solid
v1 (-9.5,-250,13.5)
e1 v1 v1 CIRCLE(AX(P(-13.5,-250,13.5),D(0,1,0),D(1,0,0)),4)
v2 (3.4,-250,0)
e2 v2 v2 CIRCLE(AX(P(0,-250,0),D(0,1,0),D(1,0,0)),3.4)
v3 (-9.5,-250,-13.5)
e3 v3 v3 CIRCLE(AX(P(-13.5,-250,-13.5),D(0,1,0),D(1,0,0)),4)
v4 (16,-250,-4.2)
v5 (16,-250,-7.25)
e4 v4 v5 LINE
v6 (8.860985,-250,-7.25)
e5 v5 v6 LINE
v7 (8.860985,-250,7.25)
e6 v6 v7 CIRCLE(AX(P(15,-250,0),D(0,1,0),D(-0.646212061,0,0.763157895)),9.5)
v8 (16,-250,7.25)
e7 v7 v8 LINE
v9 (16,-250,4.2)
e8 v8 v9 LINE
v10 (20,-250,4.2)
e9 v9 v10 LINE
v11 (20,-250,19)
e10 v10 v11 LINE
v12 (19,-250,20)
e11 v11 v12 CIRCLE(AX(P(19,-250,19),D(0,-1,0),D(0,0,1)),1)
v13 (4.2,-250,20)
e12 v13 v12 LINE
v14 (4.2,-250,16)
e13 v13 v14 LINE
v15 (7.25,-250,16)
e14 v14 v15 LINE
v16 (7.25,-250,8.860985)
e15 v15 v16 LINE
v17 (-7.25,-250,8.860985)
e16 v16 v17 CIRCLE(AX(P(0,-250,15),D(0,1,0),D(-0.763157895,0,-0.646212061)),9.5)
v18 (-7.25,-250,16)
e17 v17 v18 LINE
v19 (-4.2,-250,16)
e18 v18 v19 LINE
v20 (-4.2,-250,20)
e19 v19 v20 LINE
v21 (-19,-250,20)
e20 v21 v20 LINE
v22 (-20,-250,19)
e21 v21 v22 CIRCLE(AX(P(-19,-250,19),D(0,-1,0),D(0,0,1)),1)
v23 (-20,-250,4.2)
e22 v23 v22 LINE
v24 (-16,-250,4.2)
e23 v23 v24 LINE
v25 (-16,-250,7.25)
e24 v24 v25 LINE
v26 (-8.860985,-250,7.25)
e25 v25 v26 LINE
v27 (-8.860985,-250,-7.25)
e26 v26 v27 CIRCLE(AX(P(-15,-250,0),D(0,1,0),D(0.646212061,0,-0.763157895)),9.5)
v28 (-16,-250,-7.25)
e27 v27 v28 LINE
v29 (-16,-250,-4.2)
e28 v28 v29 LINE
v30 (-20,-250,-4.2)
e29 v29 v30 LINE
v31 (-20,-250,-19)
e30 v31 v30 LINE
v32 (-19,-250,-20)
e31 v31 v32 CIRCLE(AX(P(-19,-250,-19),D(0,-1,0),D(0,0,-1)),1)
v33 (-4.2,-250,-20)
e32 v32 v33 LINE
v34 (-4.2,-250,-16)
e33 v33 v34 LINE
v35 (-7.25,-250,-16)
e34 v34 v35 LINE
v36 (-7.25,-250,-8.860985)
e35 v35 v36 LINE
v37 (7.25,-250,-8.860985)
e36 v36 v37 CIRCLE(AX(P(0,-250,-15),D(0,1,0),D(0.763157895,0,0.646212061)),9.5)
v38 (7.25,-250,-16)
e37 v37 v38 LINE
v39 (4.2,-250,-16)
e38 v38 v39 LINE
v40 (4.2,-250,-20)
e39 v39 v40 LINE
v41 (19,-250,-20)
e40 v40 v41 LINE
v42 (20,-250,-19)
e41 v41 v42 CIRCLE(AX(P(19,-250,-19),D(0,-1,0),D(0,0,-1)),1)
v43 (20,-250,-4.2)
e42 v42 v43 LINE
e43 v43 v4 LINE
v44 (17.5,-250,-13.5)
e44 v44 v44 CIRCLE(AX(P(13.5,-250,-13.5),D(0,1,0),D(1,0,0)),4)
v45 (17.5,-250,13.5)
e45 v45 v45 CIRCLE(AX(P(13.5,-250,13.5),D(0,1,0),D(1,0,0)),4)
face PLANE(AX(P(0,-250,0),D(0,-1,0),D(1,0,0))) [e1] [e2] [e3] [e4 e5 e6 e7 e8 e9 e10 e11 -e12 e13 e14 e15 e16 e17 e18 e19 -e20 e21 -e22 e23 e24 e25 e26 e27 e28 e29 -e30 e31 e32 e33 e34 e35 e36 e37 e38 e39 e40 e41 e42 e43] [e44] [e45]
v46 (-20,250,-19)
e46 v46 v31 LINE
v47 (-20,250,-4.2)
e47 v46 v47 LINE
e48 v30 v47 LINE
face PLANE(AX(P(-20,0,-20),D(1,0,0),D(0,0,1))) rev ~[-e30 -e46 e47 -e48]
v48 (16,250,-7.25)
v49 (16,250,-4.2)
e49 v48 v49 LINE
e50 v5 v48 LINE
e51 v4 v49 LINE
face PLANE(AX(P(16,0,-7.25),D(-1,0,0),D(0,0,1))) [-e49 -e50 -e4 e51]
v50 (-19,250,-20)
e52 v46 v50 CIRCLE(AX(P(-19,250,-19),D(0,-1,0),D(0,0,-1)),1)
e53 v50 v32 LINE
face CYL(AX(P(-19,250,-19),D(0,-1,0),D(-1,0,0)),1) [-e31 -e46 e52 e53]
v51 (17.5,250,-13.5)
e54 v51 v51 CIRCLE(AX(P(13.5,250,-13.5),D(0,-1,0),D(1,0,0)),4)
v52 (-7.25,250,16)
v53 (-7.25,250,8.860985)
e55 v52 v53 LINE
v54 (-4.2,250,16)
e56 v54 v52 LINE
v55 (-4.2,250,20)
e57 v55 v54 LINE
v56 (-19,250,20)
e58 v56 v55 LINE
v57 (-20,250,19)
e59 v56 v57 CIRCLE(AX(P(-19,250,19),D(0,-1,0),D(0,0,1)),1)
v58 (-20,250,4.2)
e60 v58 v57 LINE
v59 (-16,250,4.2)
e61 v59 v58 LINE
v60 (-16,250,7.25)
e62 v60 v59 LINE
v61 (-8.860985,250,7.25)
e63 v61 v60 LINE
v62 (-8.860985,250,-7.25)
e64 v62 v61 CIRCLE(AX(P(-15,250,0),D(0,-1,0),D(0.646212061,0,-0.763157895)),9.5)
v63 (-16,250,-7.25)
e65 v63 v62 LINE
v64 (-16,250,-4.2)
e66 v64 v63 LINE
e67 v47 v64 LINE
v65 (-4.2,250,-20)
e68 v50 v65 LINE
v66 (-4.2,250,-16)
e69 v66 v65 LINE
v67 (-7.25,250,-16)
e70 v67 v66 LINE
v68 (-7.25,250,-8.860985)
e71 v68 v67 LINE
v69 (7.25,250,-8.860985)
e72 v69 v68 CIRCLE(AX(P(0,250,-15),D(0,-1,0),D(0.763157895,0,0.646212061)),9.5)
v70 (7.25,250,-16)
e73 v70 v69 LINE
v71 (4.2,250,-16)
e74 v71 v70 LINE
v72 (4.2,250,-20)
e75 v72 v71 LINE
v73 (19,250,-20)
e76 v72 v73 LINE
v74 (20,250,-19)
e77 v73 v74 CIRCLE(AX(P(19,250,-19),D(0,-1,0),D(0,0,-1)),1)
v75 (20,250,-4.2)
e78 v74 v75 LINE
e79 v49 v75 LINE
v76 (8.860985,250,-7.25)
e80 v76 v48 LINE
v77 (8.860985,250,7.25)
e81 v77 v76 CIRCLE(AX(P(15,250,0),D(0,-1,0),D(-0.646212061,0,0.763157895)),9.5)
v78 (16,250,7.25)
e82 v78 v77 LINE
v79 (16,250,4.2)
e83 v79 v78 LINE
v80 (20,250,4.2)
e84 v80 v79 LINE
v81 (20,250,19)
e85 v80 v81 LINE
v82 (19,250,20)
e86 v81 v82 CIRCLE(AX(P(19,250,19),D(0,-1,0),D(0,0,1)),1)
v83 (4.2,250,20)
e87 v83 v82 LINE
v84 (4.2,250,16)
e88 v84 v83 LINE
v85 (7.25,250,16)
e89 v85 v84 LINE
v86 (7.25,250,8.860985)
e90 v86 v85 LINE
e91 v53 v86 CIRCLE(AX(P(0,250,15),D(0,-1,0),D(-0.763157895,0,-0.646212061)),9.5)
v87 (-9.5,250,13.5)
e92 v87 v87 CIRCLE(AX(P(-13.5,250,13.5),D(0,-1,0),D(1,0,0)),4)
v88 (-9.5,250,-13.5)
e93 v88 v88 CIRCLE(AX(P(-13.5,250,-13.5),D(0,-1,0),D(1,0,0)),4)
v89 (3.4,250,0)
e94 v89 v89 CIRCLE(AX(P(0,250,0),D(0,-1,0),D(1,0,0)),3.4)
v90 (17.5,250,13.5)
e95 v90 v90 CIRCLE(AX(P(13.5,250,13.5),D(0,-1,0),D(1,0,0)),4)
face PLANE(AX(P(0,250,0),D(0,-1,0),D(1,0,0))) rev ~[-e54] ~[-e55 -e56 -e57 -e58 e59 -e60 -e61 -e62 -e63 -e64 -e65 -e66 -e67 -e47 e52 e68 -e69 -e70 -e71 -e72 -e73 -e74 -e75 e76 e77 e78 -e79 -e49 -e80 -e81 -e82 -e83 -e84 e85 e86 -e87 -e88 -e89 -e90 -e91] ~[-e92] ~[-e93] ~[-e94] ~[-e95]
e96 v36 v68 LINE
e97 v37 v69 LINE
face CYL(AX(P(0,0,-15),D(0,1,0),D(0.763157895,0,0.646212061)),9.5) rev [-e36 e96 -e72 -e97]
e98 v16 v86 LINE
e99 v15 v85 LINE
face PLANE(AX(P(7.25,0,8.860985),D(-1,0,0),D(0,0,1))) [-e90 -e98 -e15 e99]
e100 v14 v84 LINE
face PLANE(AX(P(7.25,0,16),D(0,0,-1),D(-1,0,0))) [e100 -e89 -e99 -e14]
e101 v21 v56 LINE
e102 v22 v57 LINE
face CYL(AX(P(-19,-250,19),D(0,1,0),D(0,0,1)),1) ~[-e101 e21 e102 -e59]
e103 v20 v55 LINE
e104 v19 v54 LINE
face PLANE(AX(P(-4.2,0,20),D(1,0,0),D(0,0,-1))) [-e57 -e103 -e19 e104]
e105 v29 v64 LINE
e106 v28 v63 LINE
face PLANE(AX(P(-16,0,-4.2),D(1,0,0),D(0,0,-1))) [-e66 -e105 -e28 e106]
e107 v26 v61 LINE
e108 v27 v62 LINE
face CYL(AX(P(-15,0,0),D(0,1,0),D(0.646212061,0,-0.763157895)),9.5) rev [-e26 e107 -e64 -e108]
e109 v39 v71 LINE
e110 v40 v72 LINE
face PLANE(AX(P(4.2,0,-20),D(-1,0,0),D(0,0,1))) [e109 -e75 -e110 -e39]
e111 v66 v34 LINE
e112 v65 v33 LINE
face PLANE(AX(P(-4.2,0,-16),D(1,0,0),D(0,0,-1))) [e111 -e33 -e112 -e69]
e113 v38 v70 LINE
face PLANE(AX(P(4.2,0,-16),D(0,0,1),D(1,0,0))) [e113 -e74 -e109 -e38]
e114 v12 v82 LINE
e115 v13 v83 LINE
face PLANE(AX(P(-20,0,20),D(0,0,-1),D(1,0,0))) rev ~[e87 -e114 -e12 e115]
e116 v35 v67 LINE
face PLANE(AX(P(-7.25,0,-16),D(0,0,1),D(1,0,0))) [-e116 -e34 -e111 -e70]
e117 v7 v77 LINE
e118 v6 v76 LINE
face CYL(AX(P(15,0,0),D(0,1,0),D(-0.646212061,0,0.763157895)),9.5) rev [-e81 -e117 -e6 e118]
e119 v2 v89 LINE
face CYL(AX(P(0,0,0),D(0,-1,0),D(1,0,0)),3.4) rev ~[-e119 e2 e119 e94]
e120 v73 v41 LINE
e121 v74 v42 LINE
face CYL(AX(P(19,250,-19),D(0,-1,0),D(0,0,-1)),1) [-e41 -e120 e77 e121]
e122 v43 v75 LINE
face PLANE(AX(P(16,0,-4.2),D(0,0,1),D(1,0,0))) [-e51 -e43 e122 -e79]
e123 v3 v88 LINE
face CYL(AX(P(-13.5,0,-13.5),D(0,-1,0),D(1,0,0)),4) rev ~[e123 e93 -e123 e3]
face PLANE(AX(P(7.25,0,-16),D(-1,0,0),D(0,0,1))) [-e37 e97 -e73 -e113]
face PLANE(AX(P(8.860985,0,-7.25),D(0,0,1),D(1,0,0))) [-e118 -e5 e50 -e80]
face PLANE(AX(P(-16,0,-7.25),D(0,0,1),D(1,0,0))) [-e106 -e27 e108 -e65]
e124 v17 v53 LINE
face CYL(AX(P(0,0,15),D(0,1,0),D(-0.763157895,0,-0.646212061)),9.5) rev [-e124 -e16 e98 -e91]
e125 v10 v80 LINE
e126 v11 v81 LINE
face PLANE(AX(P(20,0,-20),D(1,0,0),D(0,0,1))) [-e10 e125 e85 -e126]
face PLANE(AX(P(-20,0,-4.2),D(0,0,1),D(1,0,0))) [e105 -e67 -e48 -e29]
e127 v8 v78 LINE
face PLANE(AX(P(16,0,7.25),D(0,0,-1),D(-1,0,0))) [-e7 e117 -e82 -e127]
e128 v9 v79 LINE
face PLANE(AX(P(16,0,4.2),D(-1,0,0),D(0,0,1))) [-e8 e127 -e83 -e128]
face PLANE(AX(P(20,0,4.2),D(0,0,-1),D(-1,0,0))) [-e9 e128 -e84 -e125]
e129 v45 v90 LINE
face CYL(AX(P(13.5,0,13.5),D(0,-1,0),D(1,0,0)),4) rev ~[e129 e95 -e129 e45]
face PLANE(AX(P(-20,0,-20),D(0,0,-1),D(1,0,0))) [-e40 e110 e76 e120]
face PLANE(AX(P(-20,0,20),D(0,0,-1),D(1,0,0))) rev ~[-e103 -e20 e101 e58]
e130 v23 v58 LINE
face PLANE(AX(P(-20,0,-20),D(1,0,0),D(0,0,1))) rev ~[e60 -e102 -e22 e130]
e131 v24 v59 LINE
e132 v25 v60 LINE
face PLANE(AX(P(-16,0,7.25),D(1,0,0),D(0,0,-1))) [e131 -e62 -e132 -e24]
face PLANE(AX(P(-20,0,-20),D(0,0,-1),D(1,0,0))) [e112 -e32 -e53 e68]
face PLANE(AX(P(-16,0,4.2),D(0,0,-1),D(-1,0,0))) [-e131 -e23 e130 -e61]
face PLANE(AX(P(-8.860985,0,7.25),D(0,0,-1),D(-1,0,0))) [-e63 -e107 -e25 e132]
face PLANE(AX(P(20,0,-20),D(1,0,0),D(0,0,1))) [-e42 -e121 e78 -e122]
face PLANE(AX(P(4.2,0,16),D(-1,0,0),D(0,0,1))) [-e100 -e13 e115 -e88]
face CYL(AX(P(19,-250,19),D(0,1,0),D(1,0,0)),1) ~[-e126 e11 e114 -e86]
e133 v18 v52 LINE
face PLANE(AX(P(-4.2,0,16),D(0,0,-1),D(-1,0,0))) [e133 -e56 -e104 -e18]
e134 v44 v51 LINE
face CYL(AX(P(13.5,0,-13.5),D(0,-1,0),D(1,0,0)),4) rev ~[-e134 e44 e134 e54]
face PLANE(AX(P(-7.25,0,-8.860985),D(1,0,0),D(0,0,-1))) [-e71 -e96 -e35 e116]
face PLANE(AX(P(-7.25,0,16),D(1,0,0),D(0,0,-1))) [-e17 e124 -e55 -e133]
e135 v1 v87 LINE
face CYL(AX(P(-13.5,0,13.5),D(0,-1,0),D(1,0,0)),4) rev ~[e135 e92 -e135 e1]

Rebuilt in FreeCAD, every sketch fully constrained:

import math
import FreeCAD as App
import Part
import Sketcher
from FreeCAD import Vector
Q = App.Units.Quantity


def edges_at(feature, points):
    """Names of the edges that pass closest to the given points."""
    edges = feature.Shape.Edges
    near = lambda p: min(range(len(edges)), key=lambda i: edges[i].distToShape(Part.Vertex(*p))[0])
    return sorted({f"Edge{near(p) + 1}" for p in points})


def add_polygon(sketch, points):
    """Adds a closed chain of lines whose ends are joined by coincident constraints."""
    first, n = sketch.GeometryCount, len(points)
    for a, b in zip(points, points[1:] + points[:1]):
        sketch.addGeometry(Part.LineSegment(App.Vector(*a, 0), App.Vector(*b, 0)), False)
    for i in range(n):
        sketch.addConstraint(Sketcher.Constraint("Coincident", first + i, 2, first + (i + 1) % n, 1))

doc = App.newDocument("Part")
body = doc.addObject("PartDesign::Body", "Body")

# Sketch on XZ plane
sketch1 = body.newObject("Sketcher::SketchObject", "Sketch")
sketch1.AttachmentSupport = (doc.getObject("XZ_Plane"), [""])
sketch1.MapMode = "FlatFace"
add_polygon(sketch1, [(-20, 20), (-20, -20), (20, -20), (20, 20)])  # lines 0-3
sketch1.addConstraint(Sketcher.Constraint("Vertical", 0))
sketch1.addConstraint(Sketcher.Constraint("Horizontal", 1))
sketch1.addConstraint(Sketcher.Constraint("Vertical", 2))
sketch1.addConstraint(Sketcher.Constraint("Horizontal", 3))
sketch1.addConstraint(Sketcher.Constraint("Symmetric", 0, 2, 2, 2, -1, 1))
sketch1.addConstraint(Sketcher.Constraint("Equal", 3, 0))
sketch1.addConstraint(Sketcher.Constraint("DistanceX", 1, 1, 1, 2, Q("40 mm")))
pad1 = body.newObject("PartDesign::Pad", "Pad")
pad1.Profile = sketch1
pad1.Length = 500
pad1.Midplane = True

# Sketch on XZ plane
sketch2 = body.newObject("Sketcher::SketchObject", "Sketch001")
sketch2.AttachmentSupport = (doc.getObject("XZ_Plane"), [""])
sketch2.MapMode = "FlatFace"
sketch2.addGeometry(Part.Circle(Vector(-13.5, 13.5, 0), Vector(0, 0, 1), 4), False)
sketch2.addGeometry(Part.Circle(Vector(-13.5, -13.5, 0), Vector(0, 0, 1), 4), False)
sketch2.addGeometry(Part.Circle(Vector(13.5, -13.5, 0), Vector(0, 0, 1), 4), False)
sketch2.addGeometry(Part.Circle(Vector(13.5, 13.5, 0), Vector(0, 0, 1), 4), False)
sketch2.addGeometry(Part.Circle(Vector(0, 0, 0), Vector(0, 0, 1), 3.4), False)
sketch2.addConstraint(Sketcher.Constraint("Coincident", 4, 3, -1, 1))
sketch2.addConstraint(Sketcher.Constraint("Equal", 0, 1))
sketch2.addConstraint(Sketcher.Constraint("Equal", 1, 2))
sketch2.addConstraint(Sketcher.Constraint("Equal", 2, 3))
sketch2.addConstraint(Sketcher.Constraint("Symmetric", 0, 3, 2, 3, -1, 1))
sketch2.addConstraint(Sketcher.Constraint("Symmetric", 1, 3, 3, 3, -1, 1))
sketch2.addConstraint(Sketcher.Constraint("Symmetric", 1, 3, 2, 3, -2))
sketch2.addConstraint(Sketcher.Constraint("Diameter", 0, Q("8 mm")))
sketch2.addConstraint(Sketcher.Constraint("Diameter", 4, Q("6.8 mm")))
sketch2.addConstraint(Sketcher.Constraint("DistanceY", 1, 3, 0, 3, Q("27 mm")))
sketch2.addConstraint(Sketcher.Constraint("DistanceX", 1, 3, 2, 3, Q("27 mm")))
pocket1 = body.newObject("PartDesign::Pocket", "Pocket")
pocket1.Profile = sketch2
pocket1.Type = "ThroughAll"
pocket1.Midplane = True

# Sketch on XZ plane
sketch3 = body.newObject("Sketcher::SketchObject", "Sketch002")
sketch3.AttachmentSupport = (doc.getObject("XZ_Plane"), [""])
sketch3.MapMode = "FlatFace"
sketch3.addGeometry(Part.LineSegment(Vector(4.2, 20, 0), Vector(-4.2, 20, 0)), False)
sketch3.addGeometry(Part.LineSegment(Vector(-4.2, 20, 0), Vector(-4.2, 16, 0)), False)
sketch3.addGeometry(Part.LineSegment(Vector(-4.2, 16, 0), Vector(-7.25, 16, 0)), False)
sketch3.addGeometry(Part.LineSegment(Vector(-7.25, 16, 0), Vector(-7.25, 8.860985, 0)), False)
sketch3.addGeometry(Part.ArcOfCircle(Part.Circle(Vector(0, 15, 0), Vector(0, 0, 1), 9.5), math.radians(-139.743387), math.radians(-40.256613)), False)
sketch3.addGeometry(Part.LineSegment(Vector(7.25, 8.860985, 0), Vector(7.25, 16, 0)), False)
sketch3.addGeometry(Part.LineSegment(Vector(7.25, 16, 0), Vector(4.2, 16, 0)), False)
sketch3.addGeometry(Part.LineSegment(Vector(4.2, 16, 0), Vector(4.2, 20, 0)), False)
sketch3.addGeometry(Part.LineSegment(Vector(-16, 7.25, 0), Vector(-16, 4.2, 0)), False)
sketch3.addGeometry(Part.LineSegment(Vector(-16, 4.2, 0), Vector(-20, 4.2, 0)), False)
sketch3.addGeometry(Part.LineSegment(Vector(-20, 4.2, 0), Vector(-20, -4.2, 0)), False)
sketch3.addGeometry(Part.LineSegment(Vector(-20, -4.2, 0), Vector(-16, -4.2, 0)), False)
sketch3.addGeometry(Part.LineSegment(Vector(-16, -4.2, 0), Vector(-16, -7.25, 0)), False)
sketch3.addGeometry(Part.LineSegment(Vector(-16, -7.25, 0), Vector(-8.860985, -7.25, 0)), False)
sketch3.addGeometry(Part.ArcOfCircle(Part.Circle(Vector(-15, 0, 0), Vector(0, 0, 1), 9.5), math.radians(-49.743387), math.radians(49.743387)), False)
sketch3.addGeometry(Part.LineSegment(Vector(-8.860985, 7.25, 0), Vector(-16, 7.25, 0)), False)
sketch3.addGeometry(Part.LineSegment(Vector(-7.25, -16, 0), Vector(-4.2, -16, 0)), False)
sketch3.addGeometry(Part.LineSegment(Vector(-4.2, -16, 0), Vector(-4.2, -20, 0)), False)
sketch3.addGeometry(Part.LineSegment(Vector(-4.2, -20, 0), Vector(4.2, -20, 0)), False)
sketch3.addGeometry(Part.LineSegment(Vector(4.2, -20, 0), Vector(4.2, -16, 0)), False)
sketch3.addGeometry(Part.LineSegment(Vector(4.2, -16, 0), Vector(7.25, -16, 0)), False)
sketch3.addGeometry(Part.LineSegment(Vector(7.25, -16, 0), Vector(7.25, -8.860985, 0)), False)
sketch3.addGeometry(Part.ArcOfCircle(Part.Circle(Vector(0, -15, 0), Vector(0, 0, 1), 9.5), math.radians(40.256613), math.radians(139.743387)), False)
sketch3.addGeometry(Part.LineSegment(Vector(-7.25, -8.860985, 0), Vector(-7.25, -16, 0)), False)
sketch3.addGeometry(Part.LineSegment(Vector(16, -7.25, 0), Vector(16, -4.2, 0)), False)
sketch3.addGeometry(Part.LineSegment(Vector(16, -4.2, 0), Vector(20, -4.2, 0)), False)
sketch3.addGeometry(Part.LineSegment(Vector(20, -4.2, 0), Vector(20, 4.2, 0)), False)
sketch3.addGeometry(Part.LineSegment(Vector(20, 4.2, 0), Vector(16, 4.2, 0)), False)
sketch3.addGeometry(Part.LineSegment(Vector(16, 4.2, 0), Vector(16, 7.25, 0)), False)
sketch3.addGeometry(Part.LineSegment(Vector(16, 7.25, 0), Vector(8.860985, 7.25, 0)), False)
sketch3.addGeometry(Part.ArcOfCircle(Part.Circle(Vector(15, 0, 0), Vector(0, 0, 1), 9.5), math.radians(130.256613), math.radians(229.743387)), False)
sketch3.addGeometry(Part.LineSegment(Vector(8.860985, -7.25, 0), Vector(16, -7.25, 0)), False)
sketch3.addConstraint(Sketcher.Constraint("Coincident", 0, 2, 1, 1))
sketch3.addConstraint(Sketcher.Constraint("Coincident", 1, 2, 2, 1))
sketch3.addConstraint(Sketcher.Constraint("Coincident", 2, 2, 3, 1))
sketch3.addConstraint(Sketcher.Constraint("Coincident", 3, 2, 4, 1))
sketch3.addConstraint(Sketcher.Constraint("Coincident", 4, 2, 5, 1))
sketch3.addConstraint(Sketcher.Constraint("Coincident", 5, 2, 6, 1))
sketch3.addConstraint(Sketcher.Constraint("Coincident", 6, 2, 7, 1))
sketch3.addConstraint(Sketcher.Constraint("Coincident", 7, 2, 0, 1))
sketch3.addConstraint(Sketcher.Constraint("Coincident", 8, 2, 9, 1))
sketch3.addConstraint(Sketcher.Constraint("Coincident", 9, 2, 10, 1))
sketch3.addConstraint(Sketcher.Constraint("Coincident", 10, 2, 11, 1))
sketch3.addConstraint(Sketcher.Constraint("Coincident", 11, 2, 12, 1))
sketch3.addConstraint(Sketcher.Constraint("Coincident", 12, 2, 13, 1))
sketch3.addConstraint(Sketcher.Constraint("Coincident", 13, 2, 14, 1))
sketch3.addConstraint(Sketcher.Constraint("Coincident", 14, 2, 15, 1))
sketch3.addConstraint(Sketcher.Constraint("Coincident", 15, 2, 8, 1))
sketch3.addConstraint(Sketcher.Constraint("Coincident", 16, 2, 17, 1))
sketch3.addConstraint(Sketcher.Constraint("Coincident", 17, 2, 18, 1))
sketch3.addConstraint(Sketcher.Constraint("Coincident", 18, 2, 19, 1))
sketch3.addConstraint(Sketcher.Constraint("Coincident", 19, 2, 20, 1))
sketch3.addConstraint(Sketcher.Constraint("Coincident", 20, 2, 21, 1))
sketch3.addConstraint(Sketcher.Constraint("Coincident", 21, 2, 22, 1))
sketch3.addConstraint(Sketcher.Constraint("Coincident", 22, 2, 23, 1))
sketch3.addConstraint(Sketcher.Constraint("Coincident", 23, 2, 16, 1))
sketch3.addConstraint(Sketcher.Constraint("Coincident", 24, 2, 25, 1))
sketch3.addConstraint(Sketcher.Constraint("Coincident", 25, 2, 26, 1))
sketch3.addConstraint(Sketcher.Constraint("Coincident", 26, 2, 27, 1))
sketch3.addConstraint(Sketcher.Constraint("Coincident", 27, 2, 28, 1))
sketch3.addConstraint(Sketcher.Constraint("Coincident", 28, 2, 29, 1))
sketch3.addConstraint(Sketcher.Constraint("Coincident", 29, 2, 30, 1))
sketch3.addConstraint(Sketcher.Constraint("Coincident", 30, 2, 31, 1))
sketch3.addConstraint(Sketcher.Constraint("Coincident", 31, 2, 24, 1))
sketch3.addConstraint(Sketcher.Constraint("Horizontal", 0))
sketch3.addConstraint(Sketcher.Constraint("Vertical", 1))
sketch3.addConstraint(Sketcher.Constraint("Horizontal", 2))
sketch3.addConstraint(Sketcher.Constraint("Vertical", 3))
sketch3.addConstraint(Sketcher.Constraint("Vertical", 5))
sketch3.addConstraint(Sketcher.Constraint("Horizontal", 6))
sketch3.addConstraint(Sketcher.Constraint("Vertical", 7))
sketch3.addConstraint(Sketcher.Constraint("Vertical", 8))
sketch3.addConstraint(Sketcher.Constraint("Horizontal", 9))
sketch3.addConstraint(Sketcher.Constraint("Vertical", 10))
sketch3.addConstraint(Sketcher.Constraint("Horizontal", 11))
sketch3.addConstraint(Sketcher.Constraint("Vertical", 12))
sketch3.addConstraint(Sketcher.Constraint("Horizontal", 13))
sketch3.addConstraint(Sketcher.Constraint("Horizontal", 15))
sketch3.addConstraint(Sketcher.Constraint("Horizontal", 16))
sketch3.addConstraint(Sketcher.Constraint("Vertical", 17))
sketch3.addConstraint(Sketcher.Constraint("Horizontal", 18))
sketch3.addConstraint(Sketcher.Constraint("Vertical", 19))
sketch3.addConstraint(Sketcher.Constraint("Horizontal", 20))
sketch3.addConstraint(Sketcher.Constraint("Vertical", 21))
sketch3.addConstraint(Sketcher.Constraint("Vertical", 23))
sketch3.addConstraint(Sketcher.Constraint("Vertical", 24))
sketch3.addConstraint(Sketcher.Constraint("Horizontal", 25))
sketch3.addConstraint(Sketcher.Constraint("Vertical", 26))
sketch3.addConstraint(Sketcher.Constraint("Horizontal", 27))
sketch3.addConstraint(Sketcher.Constraint("Vertical", 28))
sketch3.addConstraint(Sketcher.Constraint("Horizontal", 29))
sketch3.addConstraint(Sketcher.Constraint("Horizontal", 31))
sketch3.addConstraint(Sketcher.Constraint("Equal", 4, 14))
sketch3.addConstraint(Sketcher.Constraint("Equal", 14, 22))
sketch3.addConstraint(Sketcher.Constraint("Equal", 22, 30))
sketch3.addConstraint(Sketcher.Constraint("Symmetric", 4, 3, 22, 3, -1, 1))
sketch3.addConstraint(Sketcher.Constraint("Symmetric", 14, 3, 30, 3, -1, 1))
sketch3.addConstraint(Sketcher.Constraint("Symmetric", 6, 2, 16, 2, -1, 1))
sketch3.addConstraint(Sketcher.Constraint("Symmetric", 0, 2, 18, 2, -1, 1))
sketch3.addConstraint(Sketcher.Constraint("Symmetric", 2, 2, 20, 2, -1, 1))
sketch3.addConstraint(Sketcher.Constraint("Symmetric", 8, 2, 24, 2, -1, 1))
sketch3.addConstraint(Sketcher.Constraint("Symmetric", 10, 2, 26, 2, -1, 1))
sketch3.addConstraint(Sketcher.Constraint("Symmetric", 12, 2, 28, 2, -1, 1))
sketch3.addConstraint(Sketcher.Constraint("Symmetric", 3, 2, 4, 2, -2))
sketch3.addConstraint(Sketcher.Constraint("Symmetric", 1, 2, 6, 2, -2))
sketch3.addConstraint(Sketcher.Constraint("Symmetric", 11, 2, 24, 2, -2))
sketch3.addConstraint(Sketcher.Constraint("Symmetric", 14, 2, 29, 2, -2))
sketch3.addConstraint(Sketcher.Constraint("Horizontal", 21, 2, 22, 2))
sketch3.addConstraint(Sketcher.Constraint("Horizontal", 13, 2, 30, 2))
sketch3.addConstraint(Sketcher.Constraint("Equal", 27, 1))
sketch3.addConstraint(Sketcher.Constraint("Equal", 31, 3))
sketch3.addConstraint(Sketcher.Constraint("Equal", 20, 8))
sketch3.addConstraint(Sketcher.Constraint("Equal", 18, 10))
sketch3.addConstraint(Sketcher.Constraint("Radius", 4, Q("9.5 mm")))
sketch3.addConstraint(Sketcher.Constraint("DistanceX", 9, 2, 9, 1, Q("4 mm")))
sketch3.addConstraint(Sketcher.Constraint("DistanceX", 0, 2, 0, 1, Q("8.4 mm")))
sketch3.addConstraint(Sketcher.Constraint("DistanceY", -1, 1, 4, 3, Q("15 mm")))
sketch3.addConstraint(Sketcher.Constraint("DistanceX", 14, 3, -1, 1, Q("15 mm")))
sketch3.addConstraint(Sketcher.Constraint("DistanceY", -1, 1, 0, 2, Q("20 mm")))
sketch3.addConstraint(Sketcher.Constraint("DistanceX", 2, 2, 2, 1, Q("3.05 mm")))
pocket2 = body.newObject("PartDesign::Pocket", "Pocket001")
pocket2.Profile = sketch3
pocket2.Type = "ThroughAll"
pocket2.Midplane = True
doc.recompute()

fillet = body.newObject("PartDesign::Fillet", "Fillet")
fillet.Base = (pocket2, edges_at(pocket2, [
    (-20, 0, 20),
    (20, 0, 20),
    (20, 0, -20),
    (-20, 0, -20),
]))
fillet.Radius = 1

doc.recompute()
